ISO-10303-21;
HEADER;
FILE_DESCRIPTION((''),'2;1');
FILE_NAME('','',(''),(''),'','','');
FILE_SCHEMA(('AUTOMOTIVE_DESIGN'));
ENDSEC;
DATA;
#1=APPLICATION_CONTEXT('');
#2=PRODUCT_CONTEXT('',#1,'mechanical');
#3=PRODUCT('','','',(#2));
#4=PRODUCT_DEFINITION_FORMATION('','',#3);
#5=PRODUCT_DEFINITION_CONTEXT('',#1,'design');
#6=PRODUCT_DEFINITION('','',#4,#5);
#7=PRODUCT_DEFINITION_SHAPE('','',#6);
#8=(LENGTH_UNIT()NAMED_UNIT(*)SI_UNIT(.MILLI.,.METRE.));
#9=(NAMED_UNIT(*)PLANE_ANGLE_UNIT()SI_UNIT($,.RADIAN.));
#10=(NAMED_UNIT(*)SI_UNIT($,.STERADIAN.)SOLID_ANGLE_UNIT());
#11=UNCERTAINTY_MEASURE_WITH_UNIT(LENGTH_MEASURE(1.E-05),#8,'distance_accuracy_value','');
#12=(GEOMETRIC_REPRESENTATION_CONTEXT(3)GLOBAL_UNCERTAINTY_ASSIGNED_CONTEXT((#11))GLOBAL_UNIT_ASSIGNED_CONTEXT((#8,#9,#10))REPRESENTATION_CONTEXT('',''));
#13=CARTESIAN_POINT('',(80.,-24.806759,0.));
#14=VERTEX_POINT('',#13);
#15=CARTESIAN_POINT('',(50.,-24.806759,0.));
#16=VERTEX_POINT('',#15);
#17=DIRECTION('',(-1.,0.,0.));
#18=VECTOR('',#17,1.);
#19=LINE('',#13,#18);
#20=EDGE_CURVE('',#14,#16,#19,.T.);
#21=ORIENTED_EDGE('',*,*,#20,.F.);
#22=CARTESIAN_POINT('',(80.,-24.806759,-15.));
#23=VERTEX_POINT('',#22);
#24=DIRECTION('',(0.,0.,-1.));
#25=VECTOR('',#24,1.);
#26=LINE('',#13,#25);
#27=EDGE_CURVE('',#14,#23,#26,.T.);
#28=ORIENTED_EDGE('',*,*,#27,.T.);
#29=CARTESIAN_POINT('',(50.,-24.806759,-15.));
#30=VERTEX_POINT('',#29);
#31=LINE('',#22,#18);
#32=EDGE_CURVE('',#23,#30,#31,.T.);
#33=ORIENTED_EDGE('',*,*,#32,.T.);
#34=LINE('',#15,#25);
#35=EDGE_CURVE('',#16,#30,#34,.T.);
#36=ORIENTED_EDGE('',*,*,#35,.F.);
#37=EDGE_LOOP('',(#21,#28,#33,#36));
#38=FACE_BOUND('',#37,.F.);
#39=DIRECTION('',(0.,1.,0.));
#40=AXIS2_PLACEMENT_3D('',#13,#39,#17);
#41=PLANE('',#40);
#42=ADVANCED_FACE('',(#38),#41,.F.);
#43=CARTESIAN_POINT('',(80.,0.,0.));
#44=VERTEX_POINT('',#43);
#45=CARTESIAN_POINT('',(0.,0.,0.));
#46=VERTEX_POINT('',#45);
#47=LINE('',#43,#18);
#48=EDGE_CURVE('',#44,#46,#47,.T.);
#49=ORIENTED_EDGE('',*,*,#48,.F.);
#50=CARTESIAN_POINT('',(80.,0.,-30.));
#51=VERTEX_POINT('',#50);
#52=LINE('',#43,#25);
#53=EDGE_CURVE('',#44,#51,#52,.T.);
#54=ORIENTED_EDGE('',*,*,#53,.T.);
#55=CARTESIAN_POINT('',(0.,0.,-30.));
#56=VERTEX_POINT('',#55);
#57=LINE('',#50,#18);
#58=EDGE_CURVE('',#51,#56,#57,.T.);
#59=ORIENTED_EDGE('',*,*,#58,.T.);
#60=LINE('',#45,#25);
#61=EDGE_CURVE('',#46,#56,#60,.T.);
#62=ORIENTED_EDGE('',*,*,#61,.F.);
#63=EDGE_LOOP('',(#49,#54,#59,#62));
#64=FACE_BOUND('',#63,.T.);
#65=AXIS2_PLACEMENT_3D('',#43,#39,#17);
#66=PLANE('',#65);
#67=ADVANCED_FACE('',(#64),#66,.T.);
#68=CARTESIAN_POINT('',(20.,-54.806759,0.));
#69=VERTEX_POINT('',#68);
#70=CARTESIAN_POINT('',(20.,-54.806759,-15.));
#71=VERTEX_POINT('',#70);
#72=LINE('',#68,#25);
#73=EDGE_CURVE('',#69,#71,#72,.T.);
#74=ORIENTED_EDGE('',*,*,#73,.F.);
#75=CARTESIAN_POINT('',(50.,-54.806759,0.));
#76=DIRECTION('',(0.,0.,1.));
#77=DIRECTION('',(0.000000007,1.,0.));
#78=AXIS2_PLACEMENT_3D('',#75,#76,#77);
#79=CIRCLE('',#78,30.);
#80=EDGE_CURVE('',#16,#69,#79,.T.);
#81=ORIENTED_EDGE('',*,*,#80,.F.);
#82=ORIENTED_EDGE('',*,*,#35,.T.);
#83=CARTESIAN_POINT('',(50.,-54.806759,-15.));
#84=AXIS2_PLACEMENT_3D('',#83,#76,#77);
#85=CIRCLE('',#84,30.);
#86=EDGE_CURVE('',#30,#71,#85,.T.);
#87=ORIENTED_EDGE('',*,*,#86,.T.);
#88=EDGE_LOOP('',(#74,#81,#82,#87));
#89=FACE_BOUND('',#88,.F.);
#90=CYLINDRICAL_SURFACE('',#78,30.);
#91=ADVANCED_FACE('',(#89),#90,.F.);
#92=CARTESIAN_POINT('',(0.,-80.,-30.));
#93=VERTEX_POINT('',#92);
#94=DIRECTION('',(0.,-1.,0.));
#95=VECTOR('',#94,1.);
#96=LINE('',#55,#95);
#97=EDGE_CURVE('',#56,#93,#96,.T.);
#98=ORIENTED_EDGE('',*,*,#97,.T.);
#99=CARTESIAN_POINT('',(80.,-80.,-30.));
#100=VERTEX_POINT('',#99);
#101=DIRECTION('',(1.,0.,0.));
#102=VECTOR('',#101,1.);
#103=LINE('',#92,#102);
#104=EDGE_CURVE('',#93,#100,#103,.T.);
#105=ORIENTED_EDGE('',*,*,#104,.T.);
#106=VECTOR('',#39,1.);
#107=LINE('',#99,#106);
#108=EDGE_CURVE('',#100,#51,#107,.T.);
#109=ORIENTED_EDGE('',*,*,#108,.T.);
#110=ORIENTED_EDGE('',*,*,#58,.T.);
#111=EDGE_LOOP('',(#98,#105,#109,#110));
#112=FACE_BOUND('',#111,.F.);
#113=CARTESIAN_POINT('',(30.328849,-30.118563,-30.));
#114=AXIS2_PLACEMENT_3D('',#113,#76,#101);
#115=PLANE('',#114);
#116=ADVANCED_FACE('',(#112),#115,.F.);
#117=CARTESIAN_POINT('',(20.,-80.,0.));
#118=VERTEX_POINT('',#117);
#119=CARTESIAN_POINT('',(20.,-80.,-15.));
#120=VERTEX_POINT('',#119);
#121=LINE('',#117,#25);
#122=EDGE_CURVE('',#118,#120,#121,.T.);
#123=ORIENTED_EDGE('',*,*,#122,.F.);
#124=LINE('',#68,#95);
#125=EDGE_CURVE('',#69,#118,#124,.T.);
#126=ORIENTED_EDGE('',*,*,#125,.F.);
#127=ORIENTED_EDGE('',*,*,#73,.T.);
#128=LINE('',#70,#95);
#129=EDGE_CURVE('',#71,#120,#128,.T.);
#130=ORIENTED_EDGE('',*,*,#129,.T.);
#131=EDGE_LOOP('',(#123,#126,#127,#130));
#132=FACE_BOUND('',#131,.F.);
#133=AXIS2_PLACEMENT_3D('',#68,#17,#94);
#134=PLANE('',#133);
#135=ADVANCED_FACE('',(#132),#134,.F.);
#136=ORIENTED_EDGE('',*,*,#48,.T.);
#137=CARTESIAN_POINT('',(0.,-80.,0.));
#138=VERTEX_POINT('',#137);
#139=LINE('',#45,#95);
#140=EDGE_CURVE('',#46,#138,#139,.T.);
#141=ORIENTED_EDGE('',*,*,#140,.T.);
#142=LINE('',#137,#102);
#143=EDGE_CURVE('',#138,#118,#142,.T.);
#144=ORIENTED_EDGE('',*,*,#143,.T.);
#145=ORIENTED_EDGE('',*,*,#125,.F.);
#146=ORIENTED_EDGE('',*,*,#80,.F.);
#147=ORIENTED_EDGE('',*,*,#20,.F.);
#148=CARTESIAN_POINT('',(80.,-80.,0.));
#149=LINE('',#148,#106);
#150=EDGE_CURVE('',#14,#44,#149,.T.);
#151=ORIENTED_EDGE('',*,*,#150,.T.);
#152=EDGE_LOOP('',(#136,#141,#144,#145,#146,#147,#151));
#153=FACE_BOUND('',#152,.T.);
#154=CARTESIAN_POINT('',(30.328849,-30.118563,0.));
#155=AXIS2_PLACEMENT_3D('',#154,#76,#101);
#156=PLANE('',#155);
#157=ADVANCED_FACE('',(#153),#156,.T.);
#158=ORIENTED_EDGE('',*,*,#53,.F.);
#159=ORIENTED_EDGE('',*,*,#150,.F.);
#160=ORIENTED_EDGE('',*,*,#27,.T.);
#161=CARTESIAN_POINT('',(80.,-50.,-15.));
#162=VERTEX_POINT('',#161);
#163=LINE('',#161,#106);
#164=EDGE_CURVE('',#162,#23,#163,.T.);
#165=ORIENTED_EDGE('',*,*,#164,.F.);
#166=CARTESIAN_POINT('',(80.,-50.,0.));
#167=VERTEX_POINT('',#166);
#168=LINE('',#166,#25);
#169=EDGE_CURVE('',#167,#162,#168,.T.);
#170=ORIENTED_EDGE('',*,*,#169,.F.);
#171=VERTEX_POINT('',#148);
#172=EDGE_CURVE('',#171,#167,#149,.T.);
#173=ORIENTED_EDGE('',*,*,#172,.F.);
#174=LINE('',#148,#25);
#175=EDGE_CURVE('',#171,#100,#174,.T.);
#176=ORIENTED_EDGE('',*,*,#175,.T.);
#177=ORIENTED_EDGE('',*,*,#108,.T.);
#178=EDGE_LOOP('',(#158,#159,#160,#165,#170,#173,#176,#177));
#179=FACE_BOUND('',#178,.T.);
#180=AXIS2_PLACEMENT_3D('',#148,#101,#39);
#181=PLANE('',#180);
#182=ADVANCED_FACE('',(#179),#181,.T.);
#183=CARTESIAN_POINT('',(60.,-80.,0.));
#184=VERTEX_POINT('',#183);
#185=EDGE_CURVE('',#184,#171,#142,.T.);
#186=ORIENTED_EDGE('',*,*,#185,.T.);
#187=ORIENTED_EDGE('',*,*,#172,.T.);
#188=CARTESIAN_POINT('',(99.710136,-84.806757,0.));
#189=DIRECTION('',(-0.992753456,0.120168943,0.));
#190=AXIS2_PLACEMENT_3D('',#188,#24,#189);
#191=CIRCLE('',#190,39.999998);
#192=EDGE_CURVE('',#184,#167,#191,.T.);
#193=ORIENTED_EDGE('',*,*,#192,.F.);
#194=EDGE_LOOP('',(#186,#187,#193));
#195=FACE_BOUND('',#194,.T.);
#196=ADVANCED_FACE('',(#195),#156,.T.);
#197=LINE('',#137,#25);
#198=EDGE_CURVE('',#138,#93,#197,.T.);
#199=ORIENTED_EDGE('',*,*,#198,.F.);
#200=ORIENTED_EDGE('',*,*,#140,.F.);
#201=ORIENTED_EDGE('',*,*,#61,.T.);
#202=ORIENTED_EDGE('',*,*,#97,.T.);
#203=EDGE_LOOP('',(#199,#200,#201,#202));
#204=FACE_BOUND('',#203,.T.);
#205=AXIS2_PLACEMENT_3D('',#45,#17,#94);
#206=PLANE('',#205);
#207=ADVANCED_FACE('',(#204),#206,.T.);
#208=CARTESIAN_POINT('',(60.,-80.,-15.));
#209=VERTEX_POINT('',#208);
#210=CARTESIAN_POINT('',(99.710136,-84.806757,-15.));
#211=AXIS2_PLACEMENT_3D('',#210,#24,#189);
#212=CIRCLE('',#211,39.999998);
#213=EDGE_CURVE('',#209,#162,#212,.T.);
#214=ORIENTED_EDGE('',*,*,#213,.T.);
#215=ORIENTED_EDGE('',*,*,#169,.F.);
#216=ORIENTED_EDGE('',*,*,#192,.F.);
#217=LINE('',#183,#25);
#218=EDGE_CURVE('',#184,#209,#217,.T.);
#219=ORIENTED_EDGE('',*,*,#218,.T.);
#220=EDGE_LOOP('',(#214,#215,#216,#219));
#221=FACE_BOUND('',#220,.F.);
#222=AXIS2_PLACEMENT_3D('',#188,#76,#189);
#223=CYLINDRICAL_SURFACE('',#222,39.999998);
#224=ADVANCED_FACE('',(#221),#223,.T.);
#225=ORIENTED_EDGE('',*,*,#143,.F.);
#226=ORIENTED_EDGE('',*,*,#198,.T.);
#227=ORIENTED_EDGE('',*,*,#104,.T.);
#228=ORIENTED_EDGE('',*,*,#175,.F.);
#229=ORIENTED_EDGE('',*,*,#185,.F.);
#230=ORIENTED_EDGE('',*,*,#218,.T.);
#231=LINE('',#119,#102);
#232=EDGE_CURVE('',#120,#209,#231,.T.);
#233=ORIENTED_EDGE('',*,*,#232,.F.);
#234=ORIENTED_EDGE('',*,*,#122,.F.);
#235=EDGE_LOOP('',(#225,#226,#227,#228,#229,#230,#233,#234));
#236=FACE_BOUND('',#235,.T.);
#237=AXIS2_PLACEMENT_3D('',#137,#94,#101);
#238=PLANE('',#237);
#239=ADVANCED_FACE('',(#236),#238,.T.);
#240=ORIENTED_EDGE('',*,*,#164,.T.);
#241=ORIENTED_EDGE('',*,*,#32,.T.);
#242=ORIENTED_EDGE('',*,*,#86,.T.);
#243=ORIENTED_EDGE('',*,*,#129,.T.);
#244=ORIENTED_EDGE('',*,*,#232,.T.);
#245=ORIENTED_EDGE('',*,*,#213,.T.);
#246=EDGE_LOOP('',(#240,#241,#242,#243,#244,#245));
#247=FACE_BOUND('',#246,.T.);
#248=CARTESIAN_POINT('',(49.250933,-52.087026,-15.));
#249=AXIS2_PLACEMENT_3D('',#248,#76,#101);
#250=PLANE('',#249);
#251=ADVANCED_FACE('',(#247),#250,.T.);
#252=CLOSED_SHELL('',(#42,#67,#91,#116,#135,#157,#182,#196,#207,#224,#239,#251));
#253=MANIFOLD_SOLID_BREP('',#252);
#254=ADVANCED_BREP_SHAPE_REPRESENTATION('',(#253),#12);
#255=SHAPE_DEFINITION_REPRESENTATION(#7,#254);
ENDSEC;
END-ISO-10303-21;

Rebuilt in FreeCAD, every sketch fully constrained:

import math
import FreeCAD as App
import Part
import Sketcher

V = App.Vector
Q = App.Units.Quantity


def add_polygon(sketch, points):
    """Adds a closed chain of lines whose ends are joined by coincident constraints."""
    first, n = sketch.GeometryCount, len(points)
    for a, b in zip(points, points[1:] + points[:1]):
        sketch.addGeometry(Part.LineSegment(App.Vector(*a, 0), App.Vector(*b, 0)), False)
    for i in range(n):
        sketch.addConstraint(Sketcher.Constraint("Coincident", first + i, 2, first + (i + 1) % n, 1))

doc = App.newDocument("Part")
body = doc.addObject("PartDesign::Body", "Body")

# Sketch on XY plane
sketch1 = body.newObject("Sketcher::SketchObject", "Sketch")
sketch1.AttachmentSupport = (doc.getObject("XY_Plane"), [""])
sketch1.MapMode = "FlatFace"
add_polygon(sketch1, [(80, 0), (0, 0), (0, -80), (80, -80)])  # lines 0-3
sketch1.addConstraint([
    Sketcher.Constraint("Horizontal", 0),
    Sketcher.Constraint("Vertical", 1),
    Sketcher.Constraint("Horizontal", 2),
    Sketcher.Constraint("Vertical", 3),
    Sketcher.Constraint("Coincident", 0, 2, -1, 1),
    Sketcher.Constraint("Equal", 2, 1),
    Sketcher.Constraint("DistanceX", 0, 2, 0, 1, Q("80 mm")),
])
pad1 = body.newObject("PartDesign::Pad", "Pad")
pad1.Profile = sketch1
pad1.Length = 30
pad1.Reversed = True

# Sketch on XY plane
sketch2 = body.newObject("Sketcher::SketchObject", "Sketch001")
sketch2.AttachmentSupport = (doc.getObject("XY_Plane"), [""])
sketch2.MapMode = "FlatFace"
sketch2.addGeometry([
    Part.LineSegment(V(80, -50, 0), V(80, -25, 0)),  # 0
    Part.LineSegment(V(80, -25, 0), V(50, -25, 0)),  # 1
    Part.ArcOfCircle(Part.Circle(V(50, -55, 0), V(0, 0, 1), 30), math.radians(90), math.radians(180)),  # 2
    Part.LineSegment(V(20, -55, 0), V(20, -80, 0)),  # 3
    Part.LineSegment(V(20, -80, 0), V(60, -80, 0)),  # 4
    Part.ArcOfCircle(Part.Circle(V(100, -85, 0), V(0, 0, 1), 40), math.radians(120), math.radians(173)),  # 5
], False)
sketch2.addConstraint([
    Sketcher.Constraint("Coincident", 0, 2, 1, 1),
    Sketcher.Constraint("Tangent", 1, 2, 2, 1),
    Sketcher.Constraint("Tangent", 2, 2, 3, 1),
    Sketcher.Constraint("Coincident", 3, 2, 4, 1),
    Sketcher.Constraint("Coincident", 4, 2, 5, 2),
    Sketcher.Constraint("Coincident", 5, 1, 0, 1),
    Sketcher.Constraint("Vertical", 0),
    Sketcher.Constraint("Horizontal", 1),
    Sketcher.Constraint("Vertical", 3),
    Sketcher.Constraint("Horizontal", 4),
    Sketcher.Constraint("Equal", 0, 3),
    Sketcher.Constraint("Radius", 2, Q("30 mm")),
    Sketcher.Constraint("DistanceX", 1, 2, 1, 1, Q("30 mm")),
    Sketcher.Constraint("DistanceX", 4, 1, 4, 2, Q("40 mm")),
    Sketcher.Constraint("DistanceX", -1, 1, 2, 3, Q("50 mm")),
    Sketcher.Constraint("DistanceY", 3, 2, -1, 1, Q("80 mm")),
    Sketcher.Constraint("DistanceY", 5, 3, 2, 3, Q("29.999999 mm")),
    Sketcher.Constraint("Radius", 5, Q("39.999998 mm")),
])
pocket1 = body.newObject("PartDesign::Pocket", "Pocket")
pocket1.Profile = sketch2
pocket1.Length = 15

doc.recompute()
